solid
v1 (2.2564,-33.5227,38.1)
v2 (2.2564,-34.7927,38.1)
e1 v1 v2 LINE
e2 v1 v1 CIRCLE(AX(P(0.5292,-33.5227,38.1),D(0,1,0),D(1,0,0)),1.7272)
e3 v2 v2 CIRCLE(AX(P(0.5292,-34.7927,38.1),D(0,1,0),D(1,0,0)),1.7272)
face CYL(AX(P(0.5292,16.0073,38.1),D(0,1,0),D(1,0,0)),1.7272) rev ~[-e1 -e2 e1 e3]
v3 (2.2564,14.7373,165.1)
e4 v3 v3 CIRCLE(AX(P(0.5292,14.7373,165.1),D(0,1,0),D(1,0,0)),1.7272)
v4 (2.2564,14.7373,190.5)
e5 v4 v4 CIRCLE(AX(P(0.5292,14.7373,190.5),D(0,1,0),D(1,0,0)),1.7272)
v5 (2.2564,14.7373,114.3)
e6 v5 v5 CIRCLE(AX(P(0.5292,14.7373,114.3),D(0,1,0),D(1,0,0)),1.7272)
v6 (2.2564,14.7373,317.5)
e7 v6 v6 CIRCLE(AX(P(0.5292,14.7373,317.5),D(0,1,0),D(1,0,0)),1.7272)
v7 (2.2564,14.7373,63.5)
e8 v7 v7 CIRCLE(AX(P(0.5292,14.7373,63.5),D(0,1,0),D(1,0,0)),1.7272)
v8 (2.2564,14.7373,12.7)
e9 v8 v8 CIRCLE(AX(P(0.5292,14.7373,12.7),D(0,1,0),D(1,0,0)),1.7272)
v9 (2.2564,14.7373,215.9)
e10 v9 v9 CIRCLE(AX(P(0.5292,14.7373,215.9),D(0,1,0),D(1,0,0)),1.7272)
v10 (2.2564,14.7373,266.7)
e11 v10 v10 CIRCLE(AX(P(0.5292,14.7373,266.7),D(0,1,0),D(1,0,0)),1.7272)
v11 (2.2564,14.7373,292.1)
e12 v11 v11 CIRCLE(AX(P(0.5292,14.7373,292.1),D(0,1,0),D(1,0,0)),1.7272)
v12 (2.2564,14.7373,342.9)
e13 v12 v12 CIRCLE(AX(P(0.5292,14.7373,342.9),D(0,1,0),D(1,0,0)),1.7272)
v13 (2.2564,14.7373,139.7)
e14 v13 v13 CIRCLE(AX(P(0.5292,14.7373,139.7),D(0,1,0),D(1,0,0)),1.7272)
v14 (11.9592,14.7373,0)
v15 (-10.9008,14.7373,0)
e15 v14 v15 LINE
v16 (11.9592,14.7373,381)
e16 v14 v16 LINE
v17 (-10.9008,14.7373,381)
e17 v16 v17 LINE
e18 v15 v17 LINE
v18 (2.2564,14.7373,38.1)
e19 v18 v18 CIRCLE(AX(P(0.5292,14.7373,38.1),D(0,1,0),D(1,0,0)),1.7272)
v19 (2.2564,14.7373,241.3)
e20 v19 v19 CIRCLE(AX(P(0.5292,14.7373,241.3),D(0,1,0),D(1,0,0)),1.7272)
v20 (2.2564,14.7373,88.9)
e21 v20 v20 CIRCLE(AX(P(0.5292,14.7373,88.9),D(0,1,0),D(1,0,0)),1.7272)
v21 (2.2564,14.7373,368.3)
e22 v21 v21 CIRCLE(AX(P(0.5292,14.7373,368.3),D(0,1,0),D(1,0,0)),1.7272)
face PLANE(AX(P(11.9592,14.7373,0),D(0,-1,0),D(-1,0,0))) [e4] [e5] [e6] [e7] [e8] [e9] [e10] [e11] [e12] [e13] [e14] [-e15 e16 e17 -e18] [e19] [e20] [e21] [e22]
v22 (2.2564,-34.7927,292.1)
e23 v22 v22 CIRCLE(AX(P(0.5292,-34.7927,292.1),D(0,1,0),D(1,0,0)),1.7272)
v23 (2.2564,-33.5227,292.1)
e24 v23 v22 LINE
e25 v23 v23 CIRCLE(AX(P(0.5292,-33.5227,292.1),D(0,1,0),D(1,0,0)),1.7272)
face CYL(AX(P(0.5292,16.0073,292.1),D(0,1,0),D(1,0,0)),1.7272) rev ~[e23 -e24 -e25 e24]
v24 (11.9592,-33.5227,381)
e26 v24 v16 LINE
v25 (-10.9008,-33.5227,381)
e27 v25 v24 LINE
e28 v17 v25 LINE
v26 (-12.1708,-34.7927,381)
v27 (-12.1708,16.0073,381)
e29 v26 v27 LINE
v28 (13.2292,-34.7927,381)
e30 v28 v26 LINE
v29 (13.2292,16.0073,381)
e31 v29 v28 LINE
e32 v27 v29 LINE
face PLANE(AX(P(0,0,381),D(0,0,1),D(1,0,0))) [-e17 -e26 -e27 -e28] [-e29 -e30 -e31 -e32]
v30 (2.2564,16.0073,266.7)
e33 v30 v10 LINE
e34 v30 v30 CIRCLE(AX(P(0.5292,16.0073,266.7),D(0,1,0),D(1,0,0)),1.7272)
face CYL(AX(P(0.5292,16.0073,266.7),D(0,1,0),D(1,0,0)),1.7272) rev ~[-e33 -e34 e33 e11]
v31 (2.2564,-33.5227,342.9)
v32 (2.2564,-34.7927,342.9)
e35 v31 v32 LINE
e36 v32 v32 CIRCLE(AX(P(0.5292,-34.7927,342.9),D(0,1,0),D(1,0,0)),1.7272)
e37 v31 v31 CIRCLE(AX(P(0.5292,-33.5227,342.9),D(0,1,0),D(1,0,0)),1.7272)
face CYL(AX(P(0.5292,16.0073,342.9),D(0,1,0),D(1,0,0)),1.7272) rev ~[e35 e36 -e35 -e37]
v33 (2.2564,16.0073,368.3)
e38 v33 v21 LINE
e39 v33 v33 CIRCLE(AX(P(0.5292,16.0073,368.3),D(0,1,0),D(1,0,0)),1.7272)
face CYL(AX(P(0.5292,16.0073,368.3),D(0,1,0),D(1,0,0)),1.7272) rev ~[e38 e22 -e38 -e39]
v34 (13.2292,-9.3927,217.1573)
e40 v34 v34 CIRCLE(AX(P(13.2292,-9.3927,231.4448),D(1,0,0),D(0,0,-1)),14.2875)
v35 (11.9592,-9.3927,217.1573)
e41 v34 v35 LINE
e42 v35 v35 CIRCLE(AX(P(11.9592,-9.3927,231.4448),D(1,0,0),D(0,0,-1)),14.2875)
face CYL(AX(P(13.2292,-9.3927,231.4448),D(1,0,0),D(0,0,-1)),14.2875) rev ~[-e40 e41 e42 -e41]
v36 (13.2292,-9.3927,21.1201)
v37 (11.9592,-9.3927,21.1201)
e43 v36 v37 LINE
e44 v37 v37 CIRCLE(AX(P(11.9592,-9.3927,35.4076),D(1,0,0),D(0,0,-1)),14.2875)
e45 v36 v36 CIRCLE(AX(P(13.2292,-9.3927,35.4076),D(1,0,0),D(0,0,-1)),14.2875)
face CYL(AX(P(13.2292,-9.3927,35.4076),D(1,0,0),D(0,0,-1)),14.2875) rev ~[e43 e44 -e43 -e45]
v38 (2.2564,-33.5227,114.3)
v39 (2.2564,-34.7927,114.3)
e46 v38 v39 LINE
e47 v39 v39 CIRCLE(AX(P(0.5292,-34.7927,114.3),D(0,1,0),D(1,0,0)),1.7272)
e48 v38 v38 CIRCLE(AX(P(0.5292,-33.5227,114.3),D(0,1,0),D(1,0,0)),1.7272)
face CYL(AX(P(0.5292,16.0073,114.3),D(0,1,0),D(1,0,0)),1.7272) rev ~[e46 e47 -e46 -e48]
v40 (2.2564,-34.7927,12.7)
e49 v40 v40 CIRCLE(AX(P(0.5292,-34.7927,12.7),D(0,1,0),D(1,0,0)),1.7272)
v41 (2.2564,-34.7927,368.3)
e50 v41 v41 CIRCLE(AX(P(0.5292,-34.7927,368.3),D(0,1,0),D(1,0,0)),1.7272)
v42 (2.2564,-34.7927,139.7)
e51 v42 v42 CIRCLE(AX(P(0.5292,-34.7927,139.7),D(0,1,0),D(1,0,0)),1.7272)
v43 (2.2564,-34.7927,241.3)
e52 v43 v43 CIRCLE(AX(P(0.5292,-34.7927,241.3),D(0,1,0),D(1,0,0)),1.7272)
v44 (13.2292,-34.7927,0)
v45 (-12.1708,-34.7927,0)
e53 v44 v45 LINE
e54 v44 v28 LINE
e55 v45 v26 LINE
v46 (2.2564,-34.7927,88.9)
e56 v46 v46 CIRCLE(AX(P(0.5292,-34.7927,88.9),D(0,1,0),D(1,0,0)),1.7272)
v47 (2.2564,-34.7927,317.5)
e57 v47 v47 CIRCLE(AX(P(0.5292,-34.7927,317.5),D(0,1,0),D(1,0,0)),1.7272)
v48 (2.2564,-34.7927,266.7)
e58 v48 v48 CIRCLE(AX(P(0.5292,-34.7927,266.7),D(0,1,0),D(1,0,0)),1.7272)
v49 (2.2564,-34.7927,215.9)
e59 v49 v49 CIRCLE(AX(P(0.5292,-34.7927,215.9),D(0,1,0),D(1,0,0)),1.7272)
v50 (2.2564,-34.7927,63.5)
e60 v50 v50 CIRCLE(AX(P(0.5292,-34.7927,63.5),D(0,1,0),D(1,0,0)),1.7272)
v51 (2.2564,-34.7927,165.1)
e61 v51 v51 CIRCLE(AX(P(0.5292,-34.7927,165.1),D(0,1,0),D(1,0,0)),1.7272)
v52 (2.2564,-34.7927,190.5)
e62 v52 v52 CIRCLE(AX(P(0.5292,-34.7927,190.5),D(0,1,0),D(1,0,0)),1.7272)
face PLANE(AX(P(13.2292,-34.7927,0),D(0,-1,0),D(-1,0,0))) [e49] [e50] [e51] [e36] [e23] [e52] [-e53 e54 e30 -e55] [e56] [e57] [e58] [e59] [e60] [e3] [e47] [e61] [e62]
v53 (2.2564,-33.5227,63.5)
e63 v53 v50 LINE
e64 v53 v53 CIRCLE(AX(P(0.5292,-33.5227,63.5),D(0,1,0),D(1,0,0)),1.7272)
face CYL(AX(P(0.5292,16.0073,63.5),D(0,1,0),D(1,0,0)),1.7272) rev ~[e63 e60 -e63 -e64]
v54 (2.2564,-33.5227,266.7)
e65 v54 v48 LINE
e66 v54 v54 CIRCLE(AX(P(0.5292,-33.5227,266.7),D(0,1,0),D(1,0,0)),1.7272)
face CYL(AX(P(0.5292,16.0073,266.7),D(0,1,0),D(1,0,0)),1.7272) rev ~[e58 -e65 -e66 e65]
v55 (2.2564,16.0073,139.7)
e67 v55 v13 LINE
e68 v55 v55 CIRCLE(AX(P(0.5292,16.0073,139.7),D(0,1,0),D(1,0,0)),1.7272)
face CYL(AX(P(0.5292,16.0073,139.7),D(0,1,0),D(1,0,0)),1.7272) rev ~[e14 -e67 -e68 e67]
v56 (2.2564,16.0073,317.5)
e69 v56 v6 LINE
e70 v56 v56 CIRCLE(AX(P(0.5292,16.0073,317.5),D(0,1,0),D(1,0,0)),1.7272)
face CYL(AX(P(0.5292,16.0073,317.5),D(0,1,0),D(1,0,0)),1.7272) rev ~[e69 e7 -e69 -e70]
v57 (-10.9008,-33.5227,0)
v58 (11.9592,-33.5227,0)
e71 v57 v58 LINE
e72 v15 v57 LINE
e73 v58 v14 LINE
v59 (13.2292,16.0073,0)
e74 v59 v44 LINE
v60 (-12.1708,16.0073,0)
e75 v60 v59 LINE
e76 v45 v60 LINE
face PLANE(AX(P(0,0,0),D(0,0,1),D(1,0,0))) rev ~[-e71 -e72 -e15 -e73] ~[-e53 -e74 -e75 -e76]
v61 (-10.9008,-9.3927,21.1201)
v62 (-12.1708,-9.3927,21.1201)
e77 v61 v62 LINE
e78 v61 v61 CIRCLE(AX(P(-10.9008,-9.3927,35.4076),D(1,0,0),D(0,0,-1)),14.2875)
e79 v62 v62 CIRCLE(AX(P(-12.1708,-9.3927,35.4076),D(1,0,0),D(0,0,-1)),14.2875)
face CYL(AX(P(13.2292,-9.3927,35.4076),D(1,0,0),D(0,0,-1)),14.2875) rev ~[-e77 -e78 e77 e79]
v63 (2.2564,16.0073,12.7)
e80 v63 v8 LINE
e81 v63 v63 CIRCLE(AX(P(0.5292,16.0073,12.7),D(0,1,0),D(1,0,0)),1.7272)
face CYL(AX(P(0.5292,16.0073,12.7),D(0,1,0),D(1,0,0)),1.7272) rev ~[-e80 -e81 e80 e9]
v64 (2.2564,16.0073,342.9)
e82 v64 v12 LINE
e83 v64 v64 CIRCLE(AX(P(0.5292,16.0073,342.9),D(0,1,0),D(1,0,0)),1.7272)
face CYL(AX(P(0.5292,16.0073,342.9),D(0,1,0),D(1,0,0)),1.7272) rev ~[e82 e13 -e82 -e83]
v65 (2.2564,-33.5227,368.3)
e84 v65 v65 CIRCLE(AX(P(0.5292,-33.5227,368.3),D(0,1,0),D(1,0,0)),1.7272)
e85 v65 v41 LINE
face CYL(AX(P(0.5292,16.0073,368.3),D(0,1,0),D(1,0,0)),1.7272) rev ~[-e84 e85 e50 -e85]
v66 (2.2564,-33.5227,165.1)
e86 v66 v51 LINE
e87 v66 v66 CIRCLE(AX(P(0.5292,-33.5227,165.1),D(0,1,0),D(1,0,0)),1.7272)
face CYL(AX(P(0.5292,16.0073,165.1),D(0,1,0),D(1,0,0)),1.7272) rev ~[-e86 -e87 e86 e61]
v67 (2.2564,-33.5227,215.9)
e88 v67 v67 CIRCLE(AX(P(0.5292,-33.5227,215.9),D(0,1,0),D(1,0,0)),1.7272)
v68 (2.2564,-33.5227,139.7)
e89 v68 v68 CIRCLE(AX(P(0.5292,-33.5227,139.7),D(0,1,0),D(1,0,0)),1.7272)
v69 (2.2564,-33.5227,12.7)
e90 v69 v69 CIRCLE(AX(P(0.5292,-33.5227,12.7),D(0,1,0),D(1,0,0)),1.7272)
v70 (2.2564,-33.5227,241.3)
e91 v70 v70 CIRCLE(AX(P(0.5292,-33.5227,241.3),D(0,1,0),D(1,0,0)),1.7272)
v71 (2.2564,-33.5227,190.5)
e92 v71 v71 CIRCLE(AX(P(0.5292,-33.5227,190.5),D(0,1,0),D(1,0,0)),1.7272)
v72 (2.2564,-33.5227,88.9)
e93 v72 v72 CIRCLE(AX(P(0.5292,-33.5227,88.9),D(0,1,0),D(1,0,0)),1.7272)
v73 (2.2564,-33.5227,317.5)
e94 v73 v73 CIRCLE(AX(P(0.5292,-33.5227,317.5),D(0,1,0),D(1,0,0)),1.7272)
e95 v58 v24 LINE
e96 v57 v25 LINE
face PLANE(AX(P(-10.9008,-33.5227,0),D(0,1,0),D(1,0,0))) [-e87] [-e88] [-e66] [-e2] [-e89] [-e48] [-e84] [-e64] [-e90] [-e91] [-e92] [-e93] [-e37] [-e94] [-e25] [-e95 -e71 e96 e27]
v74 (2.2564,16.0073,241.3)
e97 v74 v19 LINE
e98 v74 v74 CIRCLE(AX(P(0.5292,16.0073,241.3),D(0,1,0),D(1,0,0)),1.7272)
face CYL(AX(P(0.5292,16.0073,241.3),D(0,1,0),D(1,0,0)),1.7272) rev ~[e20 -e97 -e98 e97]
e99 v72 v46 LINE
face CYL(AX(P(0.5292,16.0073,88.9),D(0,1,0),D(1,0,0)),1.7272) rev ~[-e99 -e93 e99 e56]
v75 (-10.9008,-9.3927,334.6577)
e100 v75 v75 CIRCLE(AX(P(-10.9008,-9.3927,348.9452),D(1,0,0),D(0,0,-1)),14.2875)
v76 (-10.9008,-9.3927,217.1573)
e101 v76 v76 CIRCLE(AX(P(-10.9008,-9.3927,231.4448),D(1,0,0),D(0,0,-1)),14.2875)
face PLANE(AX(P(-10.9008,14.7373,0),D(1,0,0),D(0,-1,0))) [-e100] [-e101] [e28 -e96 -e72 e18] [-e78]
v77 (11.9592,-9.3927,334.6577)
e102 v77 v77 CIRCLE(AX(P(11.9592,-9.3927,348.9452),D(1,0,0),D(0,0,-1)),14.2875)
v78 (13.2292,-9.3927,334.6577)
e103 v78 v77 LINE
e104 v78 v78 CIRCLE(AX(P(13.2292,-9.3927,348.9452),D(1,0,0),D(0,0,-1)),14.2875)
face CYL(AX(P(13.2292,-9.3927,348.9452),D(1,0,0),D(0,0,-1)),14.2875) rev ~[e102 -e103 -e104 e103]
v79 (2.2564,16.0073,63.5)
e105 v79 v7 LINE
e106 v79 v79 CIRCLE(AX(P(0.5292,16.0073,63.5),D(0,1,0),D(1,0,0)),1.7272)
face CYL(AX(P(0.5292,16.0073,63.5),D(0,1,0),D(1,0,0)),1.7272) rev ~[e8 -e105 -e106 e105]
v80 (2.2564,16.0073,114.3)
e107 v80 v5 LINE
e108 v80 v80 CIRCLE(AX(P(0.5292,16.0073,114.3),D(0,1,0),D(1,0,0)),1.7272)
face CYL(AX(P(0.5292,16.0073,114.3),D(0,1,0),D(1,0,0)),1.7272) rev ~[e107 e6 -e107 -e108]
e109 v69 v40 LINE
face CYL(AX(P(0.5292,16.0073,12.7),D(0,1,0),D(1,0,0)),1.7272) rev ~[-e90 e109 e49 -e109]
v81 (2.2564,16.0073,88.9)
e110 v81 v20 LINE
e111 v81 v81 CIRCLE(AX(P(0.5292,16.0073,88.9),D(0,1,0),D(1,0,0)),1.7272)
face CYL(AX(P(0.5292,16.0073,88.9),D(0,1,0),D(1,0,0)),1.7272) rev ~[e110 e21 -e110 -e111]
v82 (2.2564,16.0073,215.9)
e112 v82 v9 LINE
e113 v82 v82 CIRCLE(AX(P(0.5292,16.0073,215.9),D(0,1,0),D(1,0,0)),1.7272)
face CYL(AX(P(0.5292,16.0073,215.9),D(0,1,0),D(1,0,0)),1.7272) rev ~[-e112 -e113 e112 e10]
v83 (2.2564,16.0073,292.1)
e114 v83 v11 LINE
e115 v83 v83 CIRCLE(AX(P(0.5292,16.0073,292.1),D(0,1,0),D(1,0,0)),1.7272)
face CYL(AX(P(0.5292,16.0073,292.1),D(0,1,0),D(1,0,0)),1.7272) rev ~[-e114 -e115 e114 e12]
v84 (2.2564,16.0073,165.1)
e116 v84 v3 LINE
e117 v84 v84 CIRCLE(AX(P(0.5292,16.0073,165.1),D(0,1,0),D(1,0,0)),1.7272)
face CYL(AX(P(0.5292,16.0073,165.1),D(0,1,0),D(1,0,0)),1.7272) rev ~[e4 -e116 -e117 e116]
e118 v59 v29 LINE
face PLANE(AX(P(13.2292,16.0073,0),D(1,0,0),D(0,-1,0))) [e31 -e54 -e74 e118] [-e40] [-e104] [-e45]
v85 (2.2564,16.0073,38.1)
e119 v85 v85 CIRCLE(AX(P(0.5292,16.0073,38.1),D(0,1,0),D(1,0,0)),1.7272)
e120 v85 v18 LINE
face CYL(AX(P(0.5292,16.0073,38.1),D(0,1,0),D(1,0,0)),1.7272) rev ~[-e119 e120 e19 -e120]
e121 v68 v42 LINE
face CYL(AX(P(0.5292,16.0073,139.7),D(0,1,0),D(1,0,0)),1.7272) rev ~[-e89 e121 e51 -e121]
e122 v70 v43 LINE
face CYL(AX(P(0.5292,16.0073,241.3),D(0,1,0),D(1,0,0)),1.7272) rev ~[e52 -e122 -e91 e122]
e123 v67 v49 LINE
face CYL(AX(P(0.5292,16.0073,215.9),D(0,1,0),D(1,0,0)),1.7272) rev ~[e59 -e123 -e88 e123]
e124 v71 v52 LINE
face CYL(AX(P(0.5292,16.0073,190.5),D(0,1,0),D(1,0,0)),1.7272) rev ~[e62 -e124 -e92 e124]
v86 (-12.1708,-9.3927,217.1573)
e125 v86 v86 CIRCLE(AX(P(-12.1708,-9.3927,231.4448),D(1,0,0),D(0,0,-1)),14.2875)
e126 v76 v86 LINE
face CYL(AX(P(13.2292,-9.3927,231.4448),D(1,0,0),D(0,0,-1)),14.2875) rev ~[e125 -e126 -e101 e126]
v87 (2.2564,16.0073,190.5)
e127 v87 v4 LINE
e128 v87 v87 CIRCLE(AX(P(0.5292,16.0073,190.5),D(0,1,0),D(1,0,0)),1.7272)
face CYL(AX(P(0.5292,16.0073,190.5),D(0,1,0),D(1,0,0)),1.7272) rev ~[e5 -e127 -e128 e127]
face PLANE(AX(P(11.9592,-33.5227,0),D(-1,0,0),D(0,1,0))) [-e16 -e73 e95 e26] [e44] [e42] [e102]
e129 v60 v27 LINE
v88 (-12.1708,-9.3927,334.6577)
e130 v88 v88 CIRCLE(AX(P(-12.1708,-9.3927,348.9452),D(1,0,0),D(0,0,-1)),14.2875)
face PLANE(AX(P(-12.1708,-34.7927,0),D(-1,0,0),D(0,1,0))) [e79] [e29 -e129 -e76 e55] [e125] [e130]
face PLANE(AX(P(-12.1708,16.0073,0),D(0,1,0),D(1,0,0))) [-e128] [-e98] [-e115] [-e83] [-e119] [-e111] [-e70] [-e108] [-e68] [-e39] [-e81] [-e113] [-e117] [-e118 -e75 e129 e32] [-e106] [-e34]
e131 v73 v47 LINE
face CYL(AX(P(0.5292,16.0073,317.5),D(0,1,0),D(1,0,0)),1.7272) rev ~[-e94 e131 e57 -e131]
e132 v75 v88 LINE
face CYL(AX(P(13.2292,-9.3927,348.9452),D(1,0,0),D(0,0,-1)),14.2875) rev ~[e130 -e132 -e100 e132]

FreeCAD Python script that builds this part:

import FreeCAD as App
import Part
import Sketcher

V = App.Vector
Q = App.Units.Quantity


def add_polygon(sketch, points):
    """Adds a closed chain of lines whose ends are joined by coincident constraints."""
    first, n = sketch.GeometryCount, len(points)
    for a, b in zip(points, points[1:] + points[:1]):
        sketch.addGeometry(Part.LineSegment(App.Vector(*a, 0), App.Vector(*b, 0)), False)
    for i in range(n):
        sketch.addConstraint(Sketcher.Constraint("Coincident", first + i, 2, first + (i + 1) % n, 1))

doc = App.newDocument("Part")
body = doc.addObject("PartDesign::Body", "Body")

# Sketch on XY plane
sketch1 = body.newObject("Sketcher::SketchObject", "Sketch")
sketch1.AttachmentSupport = (doc.getObject("XY_Plane"), [""])
sketch1.MapMode = "FlatFace"
add_polygon(sketch1, [(13, 16), (-12, 16), (-12, -35), (13, -35)])  # lines 0-3
add_polygon(sketch1, [(-11, 15), (12, 15), (12, -34), (-11, -34)])  # lines 4-7
sketch1.addConstraint([
    Sketcher.Constraint("Horizontal", 0),
    Sketcher.Constraint("Vertical", 1),
    Sketcher.Constraint("Horizontal", 2),
    Sketcher.Constraint("Vertical", 3),
    Sketcher.Constraint("Horizontal", 4),
    Sketcher.Constraint("Vertical", 5),
    Sketcher.Constraint("Horizontal", 6),
    Sketcher.Constraint("Vertical", 7),
    Sketcher.Constraint("DistanceX", 0, 2, 0, 1, Q("1 in")),
    Sketcher.Constraint("DistanceY", 1, 2, 1, 1, Q("2 in")),
    Sketcher.Constraint("DistanceX", 4, 2, 3, 2, Q("0.05 in")),
    Sketcher.Constraint("DistanceY", 4, 2, 3, 2, Q("0.05 in")),
    Sketcher.Constraint("DistanceY", 2, 2, 5, 2, Q("0.05 in")),
    Sketcher.Constraint("DistanceX", 1, 2, 6, 2, Q("0.05 in")),
    Sketcher.Constraint("DistanceY", -1, 1, 0, 2, Q("0.6302 in")),
    Sketcher.Constraint("DistanceX", 0, 2, -1, 1, 12.1708),
])
pad1 = body.newObject("PartDesign::Pad", "Pad")
pad1.Profile = sketch1
pad1.Length = Q("15 in")

# Sketch on XZ plane
sketch2 = body.newObject("Sketcher::SketchObject", "Sketch001")
sketch2.AttachmentSupport = (doc.getObject("XZ_Plane"), [""])
sketch2.MapMode = "FlatFace"
sketch2.AttachmentOffset = App.Placement(V(0, 0, -0.6302087 * 25.4), App.Rotation())
sketch2.addGeometry(Part.Circle(V(0.5, 12.7, 0), V(0, 0, 1), 1.7), False)
sketch2.addConstraint([
    Sketcher.Constraint("Diameter", 0, Q("0.136 in")),
    Sketcher.Constraint("DistanceY", -1, 1, 0, 3, Q("0.5 in")),
    Sketcher.Constraint("DistanceX", -1, 1, 0, 3, 0.5292),
])
pocket1 = body.newObject("PartDesign::Pocket", "Pocket")
pocket1.Profile = sketch2
pocket1.Type = "ThroughAll"
pocket1.Reversed = True
doc.recompute()

linearpattern = body.newObject("PartDesign::LinearPattern", "LinearPattern")
linearpattern.Originals = [pocket1]
linearpattern.Direction = (doc.getObject("Z_Axis"), [""])
linearpattern.Mode = "offset"
linearpattern.Offset = Q("1 in")
linearpattern.Occurrences = 38
body.Tip = linearpattern

# Sketch on YZ plane
sketch3 = body.newObject("Sketcher::SketchObject", "Sketch002")
sketch3.AttachmentSupport = (doc.getObject("YZ_Plane"), [""])
sketch3.MapMode = "FlatFace"
sketch3.AttachmentOffset = App.Placement(V(0, 0, 13.2292), App.Rotation())
sketch3.addGeometry([
    Part.Circle(V(-9, 349, 0), V(0, 0, 1), 14),
    Part.Circle(V(-9, 231, 0), V(0, 0, 1), 14),
    Part.Circle(V(-9, 35, 0), V(0, 0, 1), 14),
], False)
sketch3.addConstraint([
    Sketcher.Constraint("Equal", 0, 1),
    Sketcher.Constraint("Equal", 1, 2),
    Sketcher.Constraint("Vertical", 0, 3, 1, 3),
    Sketcher.Constraint("Vertical", 1, 3, 2, 3),
    Sketcher.Constraint("Diameter", 0, Q("1.125 in")),
    Sketcher.Constraint("DistanceY", -1, 1, 0, 3, Q("13.738 in")),
    Sketcher.Constraint("DistanceY", -1, 1, 1, 3, Q("9.112 in")),
    Sketcher.Constraint("DistanceY", -1, 1, 2, 3, Q("1.394 in")),
    Sketcher.Constraint("DistanceX", 0, 3, -1, 1, Q("0.3698 in")),
])
pocket2 = body.newObject("PartDesign::Pocket", "Pocket001")
pocket2.Profile = sketch3
pocket2.Type = "ThroughAll"

doc.recompute()
